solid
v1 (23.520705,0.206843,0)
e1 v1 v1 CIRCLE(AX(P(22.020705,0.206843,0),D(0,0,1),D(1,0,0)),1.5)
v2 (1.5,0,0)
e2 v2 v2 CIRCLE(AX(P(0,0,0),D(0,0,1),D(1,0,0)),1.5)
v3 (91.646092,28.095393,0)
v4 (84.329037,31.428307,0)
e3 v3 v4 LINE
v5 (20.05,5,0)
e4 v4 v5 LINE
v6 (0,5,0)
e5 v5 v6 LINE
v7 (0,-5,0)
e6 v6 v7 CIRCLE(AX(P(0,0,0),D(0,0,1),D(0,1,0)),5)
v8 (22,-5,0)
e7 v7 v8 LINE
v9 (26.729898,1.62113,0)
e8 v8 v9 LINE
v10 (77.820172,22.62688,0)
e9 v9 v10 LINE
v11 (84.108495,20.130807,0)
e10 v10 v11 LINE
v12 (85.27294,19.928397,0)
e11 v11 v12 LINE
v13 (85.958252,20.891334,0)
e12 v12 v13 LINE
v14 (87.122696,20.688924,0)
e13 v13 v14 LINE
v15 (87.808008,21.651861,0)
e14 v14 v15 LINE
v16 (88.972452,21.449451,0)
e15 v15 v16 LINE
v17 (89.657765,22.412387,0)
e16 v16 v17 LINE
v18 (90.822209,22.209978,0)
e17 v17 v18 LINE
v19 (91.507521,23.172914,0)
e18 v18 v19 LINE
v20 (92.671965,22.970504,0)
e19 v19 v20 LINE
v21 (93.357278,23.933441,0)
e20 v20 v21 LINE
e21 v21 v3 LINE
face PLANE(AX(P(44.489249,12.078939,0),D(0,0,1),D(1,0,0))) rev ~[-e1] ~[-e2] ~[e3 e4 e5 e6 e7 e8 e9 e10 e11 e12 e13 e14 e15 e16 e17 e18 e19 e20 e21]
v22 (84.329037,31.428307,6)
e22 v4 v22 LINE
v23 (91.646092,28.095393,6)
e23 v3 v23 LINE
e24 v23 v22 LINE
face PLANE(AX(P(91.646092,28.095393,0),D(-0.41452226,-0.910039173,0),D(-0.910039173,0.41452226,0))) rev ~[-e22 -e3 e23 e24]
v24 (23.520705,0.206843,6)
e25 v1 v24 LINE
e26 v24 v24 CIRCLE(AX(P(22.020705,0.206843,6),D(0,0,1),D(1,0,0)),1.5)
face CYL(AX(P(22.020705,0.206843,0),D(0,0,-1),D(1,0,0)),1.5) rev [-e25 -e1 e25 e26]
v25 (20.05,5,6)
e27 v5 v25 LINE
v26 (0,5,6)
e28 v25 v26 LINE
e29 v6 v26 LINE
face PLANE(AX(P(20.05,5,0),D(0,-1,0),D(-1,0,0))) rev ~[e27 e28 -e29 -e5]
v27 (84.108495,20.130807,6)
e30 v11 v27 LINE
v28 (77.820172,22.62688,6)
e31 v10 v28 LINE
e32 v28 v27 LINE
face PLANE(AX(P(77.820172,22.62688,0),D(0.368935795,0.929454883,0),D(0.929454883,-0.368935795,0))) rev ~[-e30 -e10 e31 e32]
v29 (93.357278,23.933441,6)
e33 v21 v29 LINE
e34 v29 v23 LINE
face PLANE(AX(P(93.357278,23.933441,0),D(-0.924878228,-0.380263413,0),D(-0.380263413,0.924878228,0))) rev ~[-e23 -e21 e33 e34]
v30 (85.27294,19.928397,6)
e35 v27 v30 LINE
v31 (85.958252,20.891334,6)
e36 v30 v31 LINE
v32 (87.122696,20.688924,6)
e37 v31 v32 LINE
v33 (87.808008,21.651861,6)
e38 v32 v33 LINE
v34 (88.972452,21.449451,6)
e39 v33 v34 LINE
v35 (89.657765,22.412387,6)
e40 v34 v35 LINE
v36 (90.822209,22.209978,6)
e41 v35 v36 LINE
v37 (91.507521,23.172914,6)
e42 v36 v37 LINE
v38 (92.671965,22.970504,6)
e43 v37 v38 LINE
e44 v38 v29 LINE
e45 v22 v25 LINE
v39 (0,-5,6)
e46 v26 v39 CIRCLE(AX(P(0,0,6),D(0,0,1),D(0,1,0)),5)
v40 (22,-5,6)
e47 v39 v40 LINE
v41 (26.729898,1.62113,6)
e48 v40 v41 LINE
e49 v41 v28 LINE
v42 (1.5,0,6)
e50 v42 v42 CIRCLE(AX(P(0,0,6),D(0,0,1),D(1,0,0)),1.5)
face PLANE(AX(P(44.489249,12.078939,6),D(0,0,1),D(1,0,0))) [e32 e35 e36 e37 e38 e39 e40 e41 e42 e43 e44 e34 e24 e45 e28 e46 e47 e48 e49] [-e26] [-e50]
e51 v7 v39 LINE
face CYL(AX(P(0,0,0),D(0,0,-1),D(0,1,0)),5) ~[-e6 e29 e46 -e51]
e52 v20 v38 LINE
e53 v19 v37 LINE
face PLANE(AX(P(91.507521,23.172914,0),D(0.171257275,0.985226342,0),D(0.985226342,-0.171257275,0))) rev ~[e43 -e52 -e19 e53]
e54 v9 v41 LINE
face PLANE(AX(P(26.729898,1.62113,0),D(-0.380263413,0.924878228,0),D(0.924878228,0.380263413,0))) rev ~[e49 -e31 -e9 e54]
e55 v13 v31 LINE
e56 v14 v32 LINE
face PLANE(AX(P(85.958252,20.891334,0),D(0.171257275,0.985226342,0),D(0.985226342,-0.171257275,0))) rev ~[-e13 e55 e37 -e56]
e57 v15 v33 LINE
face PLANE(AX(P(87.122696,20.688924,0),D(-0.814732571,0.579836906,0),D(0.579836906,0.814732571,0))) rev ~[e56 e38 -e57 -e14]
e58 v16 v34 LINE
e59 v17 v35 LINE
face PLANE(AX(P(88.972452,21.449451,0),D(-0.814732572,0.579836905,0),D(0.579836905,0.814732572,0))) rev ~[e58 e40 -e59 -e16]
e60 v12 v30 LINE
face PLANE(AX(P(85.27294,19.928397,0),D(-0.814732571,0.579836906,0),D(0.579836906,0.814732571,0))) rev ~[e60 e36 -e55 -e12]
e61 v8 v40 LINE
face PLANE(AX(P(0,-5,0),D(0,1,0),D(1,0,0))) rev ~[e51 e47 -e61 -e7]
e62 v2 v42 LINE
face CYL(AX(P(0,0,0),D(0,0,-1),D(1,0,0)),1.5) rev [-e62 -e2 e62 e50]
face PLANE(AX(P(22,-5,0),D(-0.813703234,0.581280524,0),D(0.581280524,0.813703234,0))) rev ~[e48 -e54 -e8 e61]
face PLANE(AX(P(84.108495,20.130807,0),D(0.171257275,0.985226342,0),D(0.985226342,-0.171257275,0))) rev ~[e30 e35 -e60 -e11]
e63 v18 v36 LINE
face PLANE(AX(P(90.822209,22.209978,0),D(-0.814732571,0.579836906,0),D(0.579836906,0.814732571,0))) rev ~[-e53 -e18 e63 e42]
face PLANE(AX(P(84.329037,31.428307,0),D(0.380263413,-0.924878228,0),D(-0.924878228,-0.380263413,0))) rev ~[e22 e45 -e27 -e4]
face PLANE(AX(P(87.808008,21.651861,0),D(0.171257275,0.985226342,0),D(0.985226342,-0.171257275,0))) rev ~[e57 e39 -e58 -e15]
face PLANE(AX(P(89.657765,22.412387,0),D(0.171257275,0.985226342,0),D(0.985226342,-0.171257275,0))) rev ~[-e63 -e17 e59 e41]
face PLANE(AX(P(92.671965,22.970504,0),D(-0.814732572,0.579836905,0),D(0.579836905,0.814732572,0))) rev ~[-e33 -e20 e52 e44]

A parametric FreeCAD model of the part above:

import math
import FreeCAD as App
import Part
import Sketcher
from FreeCAD import Vector
Q = App.Units.Quantity

doc = App.newDocument("Part")
params = doc.addObject("Spreadsheet::Sheet", "Params")
for row, (alias, value) in enumerate([
    ("sketch1_diameter", "3 mm"),
    ("sketch1_radius", "5 mm"),
    ("sketch1_width", "22 mm"),
    ("sketch1_length", "4.5 mm"),
    ("sketch1_length2", "69.5 mm"),
    ("pad1_length", "6 mm"),
], start=1):
    params.set(f"A{row}", alias)
    params.set(f"B{row}", "=" + value)
    params.setAlias(f"B{row}", alias)

body = doc.addObject("PartDesign::Body", "Body")

sketch1 = body.newObject("Sketcher::SketchObject", "Sketch")
sketch1.AttachmentSupport = (doc.getObject("XY_Plane"), [""])
sketch1.MapMode = "FlatFace"
sketch1.addGeometry([
    Part.LineSegment(Vector(20.1, 5, 0), Vector(0, 5, 0)),
    Part.ArcOfCircle(Part.Circle(Vector(0, 0, 0), Vector(0, 0, 1), 5), math.radians(90), math.radians(270)),
    Part.LineSegment(Vector(0, -5, 0), Vector(22, -5, 0)),
    Part.LineSegment(Vector(22, -5, 0), Vector(26.7, 1.6, 0)),
    Part.LineSegment(Vector(26.7, 1.6, 0), Vector(77.8, 22.6, 0)),
    Part.LineSegment(Vector(77.8, 22.6, 0), Vector(84.1, 20.1, 0)),
    Part.LineSegment(Vector(84.1, 20.1, 0), Vector(85.3, 19.9, 0)),
    Part.LineSegment(Vector(85.3, 19.9, 0), Vector(86, 20.9, 0)),
    Part.LineSegment(Vector(86, 20.9, 0), Vector(87.1, 20.7, 0)),
    Part.LineSegment(Vector(87.1, 20.7, 0), Vector(87.8, 21.7, 0)),
    Part.LineSegment(Vector(87.8, 21.7, 0), Vector(89, 21.4, 0)),
    Part.LineSegment(Vector(89, 21.4, 0), Vector(89.7, 22.4, 0)),
    Part.LineSegment(Vector(89.7, 22.4, 0), Vector(90.8, 22.2, 0)),
    Part.LineSegment(Vector(90.8, 22.2, 0), Vector(91.5, 23.2, 0)),
    Part.LineSegment(Vector(91.5, 23.2, 0), Vector(92.7, 23, 0)),
    Part.LineSegment(Vector(92.7, 23, 0), Vector(93.4, 23.9, 0)),
    Part.LineSegment(Vector(93.4, 23.9, 0), Vector(91.6, 28.1, 0)),
    Part.LineSegment(Vector(91.6, 28.1, 0), Vector(84.3, 31.4, 0)),
    Part.LineSegment(Vector(84.3, 31.4, 0), Vector(20.1, 5, 0)),
    Part.Circle(Vector(0, 0, 0), Vector(0, 0, 1), 1.5),
    Part.Circle(Vector(22, 0.2, 0), Vector(0, 0, 1), 1.5),
], False)
sketch1.addConstraint([
    Sketcher.Constraint("Tangent", 0, 2, 1, 1),
    Sketcher.Constraint("Tangent", 1, 2, 2, 1),
    Sketcher.Constraint("Coincident", 2, 2, 3, 1),
    Sketcher.Constraint("Coincident", 3, 2, 4, 1),
    Sketcher.Constraint("Coincident", 4, 2, 5, 1),
    Sketcher.Constraint("Coincident", 5, 2, 6, 1),
    Sketcher.Constraint("Coincident", 6, 2, 7, 1),
    Sketcher.Constraint("Coincident", 7, 2, 8, 1),
    Sketcher.Constraint("Coincident", 8, 2, 9, 1),
    Sketcher.Constraint("Coincident", 9, 2, 10, 1),
    Sketcher.Constraint("Coincident", 10, 2, 11, 1),
    Sketcher.Constraint("Coincident", 11, 2, 12, 1),
    Sketcher.Constraint("Coincident", 12, 2, 13, 1),
    Sketcher.Constraint("Coincident", 13, 2, 14, 1),
    Sketcher.Constraint("Coincident", 14, 2, 15, 1),
    Sketcher.Constraint("Coincident", 15, 2, 16, 1),
    Sketcher.Constraint("Coincident", 16, 2, 17, 1),
    Sketcher.Constraint("Coincident", 17, 2, 18, 1),
    Sketcher.Constraint("Coincident", 18, 2, 0, 1),
    Sketcher.Constraint("Horizontal", 0),
    Sketcher.Constraint("Horizontal", 2),
    Sketcher.Constraint("Coincident", 1, 3, -1, 1),
    Sketcher.Constraint("Coincident", 19, 3, -1, 1),
    Sketcher.Constraint("Equal", 19, 20),
    Sketcher.Constraint("Parallel", 6, 8),
    Sketcher.Constraint("Parallel", 7, 9),
    Sketcher.Constraint("Parallel", 8, 10),
    Sketcher.Constraint("Parallel", 9, 11),
    Sketcher.Constraint("Parallel", 10, 12),
    Sketcher.Constraint("Parallel", 11, 13),
    Sketcher.Constraint("Parallel", 12, 14),
    Sketcher.Constraint("Parallel", 13, 15),
    Sketcher.Constraint("Perpendicular", 4, 16),
    Sketcher.Constraint("Perpendicular", 16, 18),
    Sketcher.Constraint("Equal", 6, 7),
    Sketcher.Constraint("Equal", 7, 8),
    Sketcher.Constraint("Equal", 8, 9),
    Sketcher.Constraint("Equal", 9, 10),
    Sketcher.Constraint("Equal", 10, 11),
    Sketcher.Constraint("Equal", 11, 12),
    Sketcher.Constraint("Equal", 12, 13),
    Sketcher.Constraint("Equal", 13, 14),
    Sketcher.Constraint("Equal", 14, 15),
    Sketcher.Constraint("Diameter", 19, Q("3 mm")),
    Sketcher.Constraint("Radius", 1, Q("5 mm")),
    Sketcher.Constraint("DistanceX", 2, 1, 2, 2, Q("22 mm")),
    Sketcher.Constraint("Distance", 16, Q("4.5 mm")),
    Sketcher.Constraint("Distance", 18, Q("69.5 mm")),
    Sketcher.Constraint("DistanceX", 0, 2, 0, 1, Q("20.05 mm")),
    Sketcher.Constraint("Angle", 4, Q("22.35 deg")),
    Sketcher.Constraint("Angle", 5, Q("-21.65 deg")),
    Sketcher.Constraint("Distance", 4, Q("55.24 mm")),
    Sketcher.Constraint("DistanceX", -1, 1, 3, 2, Q("26.729898 mm")),
    Sketcher.Constraint("DistanceX", 5, 2, 8, 2, Q("3.014201 mm")),
    Sketcher.Constraint("DistanceY", -1, 1, 3, 2, Q("1.62113 mm")),
    Sketcher.Constraint("DistanceX", -1, 1, 6, 2, Q("85.27294 mm")),
    Sketcher.Constraint("DistanceX", -1, 1, 7, 2, Q("85.958252 mm")),
    Sketcher.Constraint("DistanceY", -1, 1, 9, 2, Q("21.651861 mm")),
    Sketcher.Constraint("DistanceX", 20, 3, 5, 2, Q("62.08779 mm")),
    Sketcher.Constraint("DistanceY", 20, 3, 7, 2, Q("20.684491 mm")),
])
sketch1.setExpression("Constraints[43]", "Params.sketch1_diameter")
sketch1.setExpression("Constraints[44]", "Params.sketch1_radius")
sketch1.setExpression("Constraints[45]", "Params.sketch1_width")
sketch1.setExpression("Constraints[46]", "Params.sketch1_length")
sketch1.setExpression("Constraints[47]", "Params.sketch1_length2")
pad1 = body.newObject("PartDesign::Pad", "Pad")
pad1.Profile = sketch1
pad1.setExpression("Length", "Params.pad1_length")

doc.recompute()
